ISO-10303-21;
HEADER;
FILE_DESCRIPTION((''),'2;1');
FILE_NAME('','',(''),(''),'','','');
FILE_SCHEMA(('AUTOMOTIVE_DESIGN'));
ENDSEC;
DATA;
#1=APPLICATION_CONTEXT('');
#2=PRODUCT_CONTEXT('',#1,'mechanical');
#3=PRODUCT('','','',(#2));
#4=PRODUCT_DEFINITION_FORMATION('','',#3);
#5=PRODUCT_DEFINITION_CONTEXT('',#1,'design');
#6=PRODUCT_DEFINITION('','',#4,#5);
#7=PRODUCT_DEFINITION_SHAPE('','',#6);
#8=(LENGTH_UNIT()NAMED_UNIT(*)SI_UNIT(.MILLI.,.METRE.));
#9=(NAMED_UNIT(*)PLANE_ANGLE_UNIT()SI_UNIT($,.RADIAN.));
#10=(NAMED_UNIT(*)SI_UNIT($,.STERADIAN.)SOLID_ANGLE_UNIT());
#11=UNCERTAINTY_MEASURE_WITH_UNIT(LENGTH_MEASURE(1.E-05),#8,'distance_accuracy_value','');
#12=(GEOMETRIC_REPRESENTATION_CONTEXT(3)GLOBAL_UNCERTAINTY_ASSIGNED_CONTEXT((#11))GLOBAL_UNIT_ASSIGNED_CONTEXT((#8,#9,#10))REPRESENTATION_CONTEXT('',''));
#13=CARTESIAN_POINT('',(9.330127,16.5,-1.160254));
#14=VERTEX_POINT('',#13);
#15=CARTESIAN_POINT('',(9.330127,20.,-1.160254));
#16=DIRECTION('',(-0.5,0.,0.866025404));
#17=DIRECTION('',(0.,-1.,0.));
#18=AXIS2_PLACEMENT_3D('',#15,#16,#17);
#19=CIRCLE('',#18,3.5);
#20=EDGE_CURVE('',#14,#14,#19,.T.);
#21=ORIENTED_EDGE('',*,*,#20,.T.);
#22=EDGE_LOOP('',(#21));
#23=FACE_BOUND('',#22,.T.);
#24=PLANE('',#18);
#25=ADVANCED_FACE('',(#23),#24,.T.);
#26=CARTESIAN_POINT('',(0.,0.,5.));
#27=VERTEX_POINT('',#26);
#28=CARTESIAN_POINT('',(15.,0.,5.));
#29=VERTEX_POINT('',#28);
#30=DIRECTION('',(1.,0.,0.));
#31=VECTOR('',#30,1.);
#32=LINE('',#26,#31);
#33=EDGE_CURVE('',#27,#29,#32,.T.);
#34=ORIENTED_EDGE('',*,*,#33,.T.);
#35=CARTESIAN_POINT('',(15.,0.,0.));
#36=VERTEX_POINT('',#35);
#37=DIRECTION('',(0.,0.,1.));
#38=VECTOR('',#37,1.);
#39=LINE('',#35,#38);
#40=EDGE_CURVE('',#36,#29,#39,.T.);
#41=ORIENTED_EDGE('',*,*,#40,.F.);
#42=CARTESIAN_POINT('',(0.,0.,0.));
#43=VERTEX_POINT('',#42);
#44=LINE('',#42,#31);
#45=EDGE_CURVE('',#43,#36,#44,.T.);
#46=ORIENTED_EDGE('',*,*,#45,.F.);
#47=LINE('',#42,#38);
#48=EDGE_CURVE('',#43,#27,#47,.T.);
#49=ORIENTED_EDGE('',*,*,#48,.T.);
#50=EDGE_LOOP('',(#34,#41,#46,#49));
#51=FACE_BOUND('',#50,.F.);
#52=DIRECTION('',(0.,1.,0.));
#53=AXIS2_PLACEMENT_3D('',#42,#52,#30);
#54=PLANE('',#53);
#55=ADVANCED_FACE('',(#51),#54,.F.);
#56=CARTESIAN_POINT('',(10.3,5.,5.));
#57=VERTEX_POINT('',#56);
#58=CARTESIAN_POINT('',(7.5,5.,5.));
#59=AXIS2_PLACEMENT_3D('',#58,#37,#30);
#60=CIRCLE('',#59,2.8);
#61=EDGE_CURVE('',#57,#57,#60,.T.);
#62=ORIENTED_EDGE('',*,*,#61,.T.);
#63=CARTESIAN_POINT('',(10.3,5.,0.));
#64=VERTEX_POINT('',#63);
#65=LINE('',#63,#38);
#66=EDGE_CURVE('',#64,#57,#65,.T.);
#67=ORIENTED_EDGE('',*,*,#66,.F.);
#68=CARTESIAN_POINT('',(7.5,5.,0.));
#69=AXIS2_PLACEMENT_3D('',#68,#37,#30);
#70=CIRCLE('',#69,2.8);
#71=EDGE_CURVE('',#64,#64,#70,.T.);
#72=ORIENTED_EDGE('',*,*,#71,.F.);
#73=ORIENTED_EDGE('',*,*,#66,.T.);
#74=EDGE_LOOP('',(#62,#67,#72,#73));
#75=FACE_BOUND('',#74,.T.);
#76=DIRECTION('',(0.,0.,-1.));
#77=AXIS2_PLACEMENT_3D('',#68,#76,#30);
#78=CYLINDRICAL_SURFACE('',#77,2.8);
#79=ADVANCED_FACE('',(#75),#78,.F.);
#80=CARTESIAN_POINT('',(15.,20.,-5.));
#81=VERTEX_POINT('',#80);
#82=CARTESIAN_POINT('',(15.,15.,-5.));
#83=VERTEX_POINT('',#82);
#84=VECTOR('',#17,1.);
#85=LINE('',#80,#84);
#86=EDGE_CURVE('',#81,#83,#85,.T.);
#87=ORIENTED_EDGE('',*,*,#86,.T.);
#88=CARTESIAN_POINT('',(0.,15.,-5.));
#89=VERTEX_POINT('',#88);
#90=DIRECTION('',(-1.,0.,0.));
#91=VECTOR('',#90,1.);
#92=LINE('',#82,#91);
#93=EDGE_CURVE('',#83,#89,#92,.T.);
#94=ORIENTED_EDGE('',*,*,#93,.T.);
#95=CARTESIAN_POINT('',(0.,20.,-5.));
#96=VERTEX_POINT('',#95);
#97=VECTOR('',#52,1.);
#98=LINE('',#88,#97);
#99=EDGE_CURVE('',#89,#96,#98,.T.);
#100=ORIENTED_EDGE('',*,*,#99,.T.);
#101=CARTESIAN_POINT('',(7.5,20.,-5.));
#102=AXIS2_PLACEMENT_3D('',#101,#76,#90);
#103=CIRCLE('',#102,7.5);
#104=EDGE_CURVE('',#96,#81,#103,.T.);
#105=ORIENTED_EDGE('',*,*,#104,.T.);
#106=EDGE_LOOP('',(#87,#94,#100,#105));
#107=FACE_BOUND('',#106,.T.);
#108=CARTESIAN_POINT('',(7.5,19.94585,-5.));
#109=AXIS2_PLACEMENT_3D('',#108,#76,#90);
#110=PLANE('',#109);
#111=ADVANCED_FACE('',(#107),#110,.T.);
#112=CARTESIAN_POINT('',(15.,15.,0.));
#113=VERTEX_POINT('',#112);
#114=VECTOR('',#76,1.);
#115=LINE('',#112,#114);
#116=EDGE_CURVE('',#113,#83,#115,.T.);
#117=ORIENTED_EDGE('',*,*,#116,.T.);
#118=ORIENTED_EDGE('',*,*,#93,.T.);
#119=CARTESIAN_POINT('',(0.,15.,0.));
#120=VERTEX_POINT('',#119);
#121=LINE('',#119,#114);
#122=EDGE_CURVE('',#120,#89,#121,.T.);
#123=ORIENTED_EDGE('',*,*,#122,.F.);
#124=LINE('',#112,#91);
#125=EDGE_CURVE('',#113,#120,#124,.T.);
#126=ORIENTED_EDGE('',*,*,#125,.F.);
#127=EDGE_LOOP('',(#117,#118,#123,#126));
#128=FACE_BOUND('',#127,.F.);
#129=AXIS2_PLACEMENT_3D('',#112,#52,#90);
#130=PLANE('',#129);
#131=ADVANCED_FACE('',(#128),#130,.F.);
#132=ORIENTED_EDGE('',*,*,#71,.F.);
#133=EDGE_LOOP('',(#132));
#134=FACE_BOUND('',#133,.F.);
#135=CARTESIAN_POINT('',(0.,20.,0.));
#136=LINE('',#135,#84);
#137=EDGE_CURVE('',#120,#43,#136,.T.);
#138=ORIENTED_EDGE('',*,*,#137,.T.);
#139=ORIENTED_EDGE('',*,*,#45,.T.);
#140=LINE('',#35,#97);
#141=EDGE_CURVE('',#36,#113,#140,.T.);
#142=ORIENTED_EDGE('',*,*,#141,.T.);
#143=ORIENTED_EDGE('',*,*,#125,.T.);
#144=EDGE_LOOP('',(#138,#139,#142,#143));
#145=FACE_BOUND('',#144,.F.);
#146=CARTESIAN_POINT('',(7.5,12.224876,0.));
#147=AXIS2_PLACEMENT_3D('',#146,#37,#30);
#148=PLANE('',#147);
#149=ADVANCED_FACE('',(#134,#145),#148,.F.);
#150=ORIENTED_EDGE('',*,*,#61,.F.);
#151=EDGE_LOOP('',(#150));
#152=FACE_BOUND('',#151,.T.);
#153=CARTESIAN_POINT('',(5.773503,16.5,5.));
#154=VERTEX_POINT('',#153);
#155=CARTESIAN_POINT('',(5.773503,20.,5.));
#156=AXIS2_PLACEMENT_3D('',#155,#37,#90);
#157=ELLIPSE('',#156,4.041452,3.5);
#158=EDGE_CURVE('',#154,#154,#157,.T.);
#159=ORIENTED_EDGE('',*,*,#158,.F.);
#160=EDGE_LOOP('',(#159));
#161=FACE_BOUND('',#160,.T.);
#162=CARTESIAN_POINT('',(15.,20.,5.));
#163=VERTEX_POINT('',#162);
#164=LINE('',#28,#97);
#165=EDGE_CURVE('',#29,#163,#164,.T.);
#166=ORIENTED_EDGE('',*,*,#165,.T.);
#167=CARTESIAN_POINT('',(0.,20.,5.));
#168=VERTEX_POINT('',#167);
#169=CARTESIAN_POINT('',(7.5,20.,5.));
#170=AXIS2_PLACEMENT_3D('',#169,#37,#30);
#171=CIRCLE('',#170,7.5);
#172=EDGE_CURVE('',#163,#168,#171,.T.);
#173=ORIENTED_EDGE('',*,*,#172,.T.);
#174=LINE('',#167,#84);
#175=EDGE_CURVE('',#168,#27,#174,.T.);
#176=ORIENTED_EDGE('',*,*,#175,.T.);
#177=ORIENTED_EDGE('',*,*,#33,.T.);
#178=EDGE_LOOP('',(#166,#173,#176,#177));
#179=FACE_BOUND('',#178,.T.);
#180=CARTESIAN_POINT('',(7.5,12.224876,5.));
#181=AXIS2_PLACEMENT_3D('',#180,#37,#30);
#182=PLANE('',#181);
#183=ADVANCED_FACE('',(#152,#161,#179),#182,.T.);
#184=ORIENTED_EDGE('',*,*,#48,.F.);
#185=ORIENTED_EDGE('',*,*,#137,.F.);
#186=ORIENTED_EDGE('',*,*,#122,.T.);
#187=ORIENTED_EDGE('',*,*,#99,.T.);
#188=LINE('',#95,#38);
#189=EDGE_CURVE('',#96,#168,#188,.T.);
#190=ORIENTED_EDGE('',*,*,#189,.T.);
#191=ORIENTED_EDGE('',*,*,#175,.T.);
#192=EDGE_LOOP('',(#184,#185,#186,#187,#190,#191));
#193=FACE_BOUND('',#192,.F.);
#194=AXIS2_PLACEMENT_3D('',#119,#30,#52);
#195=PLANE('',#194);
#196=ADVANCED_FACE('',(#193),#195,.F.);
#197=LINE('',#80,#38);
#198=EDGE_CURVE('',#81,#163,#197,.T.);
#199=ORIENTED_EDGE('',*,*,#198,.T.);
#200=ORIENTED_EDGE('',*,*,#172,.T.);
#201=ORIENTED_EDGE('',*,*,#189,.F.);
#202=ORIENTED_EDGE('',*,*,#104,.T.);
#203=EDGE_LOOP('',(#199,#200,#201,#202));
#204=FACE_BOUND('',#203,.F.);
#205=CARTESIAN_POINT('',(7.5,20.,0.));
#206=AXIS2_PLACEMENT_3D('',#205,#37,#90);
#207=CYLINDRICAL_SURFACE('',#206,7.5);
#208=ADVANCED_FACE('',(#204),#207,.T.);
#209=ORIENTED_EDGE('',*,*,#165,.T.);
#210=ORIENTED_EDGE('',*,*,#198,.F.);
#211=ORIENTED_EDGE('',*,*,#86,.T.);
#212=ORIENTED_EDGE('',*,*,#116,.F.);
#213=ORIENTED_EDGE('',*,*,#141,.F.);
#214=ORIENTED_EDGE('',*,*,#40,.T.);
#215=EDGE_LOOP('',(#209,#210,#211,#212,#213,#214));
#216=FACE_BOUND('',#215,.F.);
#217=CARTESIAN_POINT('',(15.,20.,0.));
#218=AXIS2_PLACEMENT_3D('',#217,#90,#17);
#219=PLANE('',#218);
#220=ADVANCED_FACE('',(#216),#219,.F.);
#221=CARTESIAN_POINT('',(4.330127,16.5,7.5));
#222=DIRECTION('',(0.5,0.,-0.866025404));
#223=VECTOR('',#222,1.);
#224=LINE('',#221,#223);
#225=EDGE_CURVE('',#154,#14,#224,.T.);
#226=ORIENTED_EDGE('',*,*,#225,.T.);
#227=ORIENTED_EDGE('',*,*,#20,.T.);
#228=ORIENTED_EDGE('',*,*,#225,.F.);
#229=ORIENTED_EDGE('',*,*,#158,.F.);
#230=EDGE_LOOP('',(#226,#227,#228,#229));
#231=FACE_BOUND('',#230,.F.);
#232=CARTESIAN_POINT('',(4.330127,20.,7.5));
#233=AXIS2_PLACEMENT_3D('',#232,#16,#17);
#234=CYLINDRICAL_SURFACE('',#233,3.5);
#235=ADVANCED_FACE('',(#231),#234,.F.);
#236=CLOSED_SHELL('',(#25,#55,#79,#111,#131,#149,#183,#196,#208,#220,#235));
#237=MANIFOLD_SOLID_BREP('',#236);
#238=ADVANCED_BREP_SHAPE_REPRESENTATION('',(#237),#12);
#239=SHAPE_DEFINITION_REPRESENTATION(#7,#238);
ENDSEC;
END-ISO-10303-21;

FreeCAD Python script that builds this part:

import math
import FreeCAD as App
import Part
import Sketcher

doc = App.newDocument("Part")
body = doc.addObject("PartDesign::Body", "Body")

sketch1 = body.newObject("Sketcher::SketchObject", "Sketch")
sketch1.AttachmentSupport = (doc.getObject("XY_Plane"), [""])
sketch1.MapMode = "FlatFace"
sketch1.addGeometry([
    Part.LineSegment(App.Vector(0, 0, 0), App.Vector(15, 0, 0)),
    Part.LineSegment(App.Vector(15, 0, 0), App.Vector(15, 20, 0)),
    Part.ArcOfCircle(Part.Circle(App.Vector(7.5, 20, 0), App.Vector(0, 0, 1), 7.5), math.radians(0), math.radians(180)),
    Part.LineSegment(App.Vector(0, 20, 0), App.Vector(0, 0, 0)),
    Part.Circle(App.Vector(7.5, 5, 0), App.Vector(0, 0, 1), 2.8),
], False)
sketch1.addConstraint([
    Sketcher.Constraint("Coincident", 0, 2, 1, 1),
    Sketcher.Constraint("Tangent", 1, 2, 2, 1),
    Sketcher.Constraint("Tangent", 2, 2, 3, 1),
    Sketcher.Constraint("Coincident", 3, 2, 0, 1),
    Sketcher.Constraint("Horizontal", 0),
    Sketcher.Constraint("Vertical", 1),
    Sketcher.Constraint("Vertical", 3),
    Sketcher.Constraint("Coincident", 3, 2, -1, 1),
    Sketcher.Constraint("Vertical", 2, 3, 4, 3),
    Sketcher.Constraint("Diameter", 4, 5.6),
    Sketcher.Constraint("Radius", 2, 7.5),
    Sketcher.Constraint("DistanceY", 1, 1, 1, 2, 20.0),
    Sketcher.Constraint("DistanceY", -1, 1, 4, 3, 5.0),
])
pad1 = body.newObject("PartDesign::Pad", "Pad")
pad1.Profile = sketch1
pad1.Length = 5

sketch2 = body.newObject("Sketcher::SketchObject", "Sketch001")
sketch2.AttachmentSupport = (doc.getObject("XY_Plane"), [""])
sketch2.MapMode = "FlatFace"
sketch2.addGeometry([
    Part.LineSegment(App.Vector(15, 20, 0), App.Vector(15, 15, 0)),
    Part.LineSegment(App.Vector(15, 15, 0), App.Vector(0, 15, 0)),
    Part.LineSegment(App.Vector(0, 15, 0), App.Vector(0, 20, 0)),
    Part.ArcOfCircle(Part.Circle(App.Vector(8, 20, 0), App.Vector(0, 0, 1), 8), math.radians(0), math.radians(180)),
], False)
sketch2.addConstraint([
    Sketcher.Constraint("Coincident", 0, 2, 1, 1),
    Sketcher.Constraint("Coincident", 1, 2, 2, 1),
    Sketcher.Constraint("Tangent", 2, 2, 3, 2),
    Sketcher.Constraint("Tangent", 3, 1, 0, 1),
    Sketcher.Constraint("Vertical", 0),
    Sketcher.Constraint("Horizontal", 1),
    Sketcher.Constraint("Vertical", 2),
    Sketcher.Constraint("PointOnObject", 1, 2, -2),
    Sketcher.Constraint("Radius", 3, 7.5),
    Sketcher.Constraint("DistanceY", 0, 2, 0, 1, 5.0),
    Sketcher.Constraint("DistanceY", -1, 1, 3, 3, 20.0),
])
pad2 = body.newObject("PartDesign::Pad", "Pad001")
pad2.Profile = sketch2
pad2.Length = 5
pad2.Reversed = True

sketch3 = body.newObject("Sketcher::SketchObject", "Sketch002")
sketch3.Placement = App.Placement(App.Vector(-2.165064, 0, 3.75), App.Rotation(App.Vector(0, -1, 0), App.Vector(0.866025404, 0, 0.5), App.Vector(-0.5, 0, 0.866025404), "ZXY"))
sketch3.addGeometry(Part.Circle(App.Vector(-20, 7.5, 0), App.Vector(0, 0, 1), 3.5), False)
sketch3.addConstraint([
    Sketcher.Constraint("Diameter", 0, 7.0),
    Sketcher.Constraint("DistanceX", 0, 3, -1, 1, 20.0),
    Sketcher.Constraint("DistanceY", -1, 1, 0, 3, 7.5),
])
pocket1 = body.newObject("PartDesign::Pocket", "Pocket")
pocket1.Profile = sketch3
pocket1.Length = 10

doc.recompute()
